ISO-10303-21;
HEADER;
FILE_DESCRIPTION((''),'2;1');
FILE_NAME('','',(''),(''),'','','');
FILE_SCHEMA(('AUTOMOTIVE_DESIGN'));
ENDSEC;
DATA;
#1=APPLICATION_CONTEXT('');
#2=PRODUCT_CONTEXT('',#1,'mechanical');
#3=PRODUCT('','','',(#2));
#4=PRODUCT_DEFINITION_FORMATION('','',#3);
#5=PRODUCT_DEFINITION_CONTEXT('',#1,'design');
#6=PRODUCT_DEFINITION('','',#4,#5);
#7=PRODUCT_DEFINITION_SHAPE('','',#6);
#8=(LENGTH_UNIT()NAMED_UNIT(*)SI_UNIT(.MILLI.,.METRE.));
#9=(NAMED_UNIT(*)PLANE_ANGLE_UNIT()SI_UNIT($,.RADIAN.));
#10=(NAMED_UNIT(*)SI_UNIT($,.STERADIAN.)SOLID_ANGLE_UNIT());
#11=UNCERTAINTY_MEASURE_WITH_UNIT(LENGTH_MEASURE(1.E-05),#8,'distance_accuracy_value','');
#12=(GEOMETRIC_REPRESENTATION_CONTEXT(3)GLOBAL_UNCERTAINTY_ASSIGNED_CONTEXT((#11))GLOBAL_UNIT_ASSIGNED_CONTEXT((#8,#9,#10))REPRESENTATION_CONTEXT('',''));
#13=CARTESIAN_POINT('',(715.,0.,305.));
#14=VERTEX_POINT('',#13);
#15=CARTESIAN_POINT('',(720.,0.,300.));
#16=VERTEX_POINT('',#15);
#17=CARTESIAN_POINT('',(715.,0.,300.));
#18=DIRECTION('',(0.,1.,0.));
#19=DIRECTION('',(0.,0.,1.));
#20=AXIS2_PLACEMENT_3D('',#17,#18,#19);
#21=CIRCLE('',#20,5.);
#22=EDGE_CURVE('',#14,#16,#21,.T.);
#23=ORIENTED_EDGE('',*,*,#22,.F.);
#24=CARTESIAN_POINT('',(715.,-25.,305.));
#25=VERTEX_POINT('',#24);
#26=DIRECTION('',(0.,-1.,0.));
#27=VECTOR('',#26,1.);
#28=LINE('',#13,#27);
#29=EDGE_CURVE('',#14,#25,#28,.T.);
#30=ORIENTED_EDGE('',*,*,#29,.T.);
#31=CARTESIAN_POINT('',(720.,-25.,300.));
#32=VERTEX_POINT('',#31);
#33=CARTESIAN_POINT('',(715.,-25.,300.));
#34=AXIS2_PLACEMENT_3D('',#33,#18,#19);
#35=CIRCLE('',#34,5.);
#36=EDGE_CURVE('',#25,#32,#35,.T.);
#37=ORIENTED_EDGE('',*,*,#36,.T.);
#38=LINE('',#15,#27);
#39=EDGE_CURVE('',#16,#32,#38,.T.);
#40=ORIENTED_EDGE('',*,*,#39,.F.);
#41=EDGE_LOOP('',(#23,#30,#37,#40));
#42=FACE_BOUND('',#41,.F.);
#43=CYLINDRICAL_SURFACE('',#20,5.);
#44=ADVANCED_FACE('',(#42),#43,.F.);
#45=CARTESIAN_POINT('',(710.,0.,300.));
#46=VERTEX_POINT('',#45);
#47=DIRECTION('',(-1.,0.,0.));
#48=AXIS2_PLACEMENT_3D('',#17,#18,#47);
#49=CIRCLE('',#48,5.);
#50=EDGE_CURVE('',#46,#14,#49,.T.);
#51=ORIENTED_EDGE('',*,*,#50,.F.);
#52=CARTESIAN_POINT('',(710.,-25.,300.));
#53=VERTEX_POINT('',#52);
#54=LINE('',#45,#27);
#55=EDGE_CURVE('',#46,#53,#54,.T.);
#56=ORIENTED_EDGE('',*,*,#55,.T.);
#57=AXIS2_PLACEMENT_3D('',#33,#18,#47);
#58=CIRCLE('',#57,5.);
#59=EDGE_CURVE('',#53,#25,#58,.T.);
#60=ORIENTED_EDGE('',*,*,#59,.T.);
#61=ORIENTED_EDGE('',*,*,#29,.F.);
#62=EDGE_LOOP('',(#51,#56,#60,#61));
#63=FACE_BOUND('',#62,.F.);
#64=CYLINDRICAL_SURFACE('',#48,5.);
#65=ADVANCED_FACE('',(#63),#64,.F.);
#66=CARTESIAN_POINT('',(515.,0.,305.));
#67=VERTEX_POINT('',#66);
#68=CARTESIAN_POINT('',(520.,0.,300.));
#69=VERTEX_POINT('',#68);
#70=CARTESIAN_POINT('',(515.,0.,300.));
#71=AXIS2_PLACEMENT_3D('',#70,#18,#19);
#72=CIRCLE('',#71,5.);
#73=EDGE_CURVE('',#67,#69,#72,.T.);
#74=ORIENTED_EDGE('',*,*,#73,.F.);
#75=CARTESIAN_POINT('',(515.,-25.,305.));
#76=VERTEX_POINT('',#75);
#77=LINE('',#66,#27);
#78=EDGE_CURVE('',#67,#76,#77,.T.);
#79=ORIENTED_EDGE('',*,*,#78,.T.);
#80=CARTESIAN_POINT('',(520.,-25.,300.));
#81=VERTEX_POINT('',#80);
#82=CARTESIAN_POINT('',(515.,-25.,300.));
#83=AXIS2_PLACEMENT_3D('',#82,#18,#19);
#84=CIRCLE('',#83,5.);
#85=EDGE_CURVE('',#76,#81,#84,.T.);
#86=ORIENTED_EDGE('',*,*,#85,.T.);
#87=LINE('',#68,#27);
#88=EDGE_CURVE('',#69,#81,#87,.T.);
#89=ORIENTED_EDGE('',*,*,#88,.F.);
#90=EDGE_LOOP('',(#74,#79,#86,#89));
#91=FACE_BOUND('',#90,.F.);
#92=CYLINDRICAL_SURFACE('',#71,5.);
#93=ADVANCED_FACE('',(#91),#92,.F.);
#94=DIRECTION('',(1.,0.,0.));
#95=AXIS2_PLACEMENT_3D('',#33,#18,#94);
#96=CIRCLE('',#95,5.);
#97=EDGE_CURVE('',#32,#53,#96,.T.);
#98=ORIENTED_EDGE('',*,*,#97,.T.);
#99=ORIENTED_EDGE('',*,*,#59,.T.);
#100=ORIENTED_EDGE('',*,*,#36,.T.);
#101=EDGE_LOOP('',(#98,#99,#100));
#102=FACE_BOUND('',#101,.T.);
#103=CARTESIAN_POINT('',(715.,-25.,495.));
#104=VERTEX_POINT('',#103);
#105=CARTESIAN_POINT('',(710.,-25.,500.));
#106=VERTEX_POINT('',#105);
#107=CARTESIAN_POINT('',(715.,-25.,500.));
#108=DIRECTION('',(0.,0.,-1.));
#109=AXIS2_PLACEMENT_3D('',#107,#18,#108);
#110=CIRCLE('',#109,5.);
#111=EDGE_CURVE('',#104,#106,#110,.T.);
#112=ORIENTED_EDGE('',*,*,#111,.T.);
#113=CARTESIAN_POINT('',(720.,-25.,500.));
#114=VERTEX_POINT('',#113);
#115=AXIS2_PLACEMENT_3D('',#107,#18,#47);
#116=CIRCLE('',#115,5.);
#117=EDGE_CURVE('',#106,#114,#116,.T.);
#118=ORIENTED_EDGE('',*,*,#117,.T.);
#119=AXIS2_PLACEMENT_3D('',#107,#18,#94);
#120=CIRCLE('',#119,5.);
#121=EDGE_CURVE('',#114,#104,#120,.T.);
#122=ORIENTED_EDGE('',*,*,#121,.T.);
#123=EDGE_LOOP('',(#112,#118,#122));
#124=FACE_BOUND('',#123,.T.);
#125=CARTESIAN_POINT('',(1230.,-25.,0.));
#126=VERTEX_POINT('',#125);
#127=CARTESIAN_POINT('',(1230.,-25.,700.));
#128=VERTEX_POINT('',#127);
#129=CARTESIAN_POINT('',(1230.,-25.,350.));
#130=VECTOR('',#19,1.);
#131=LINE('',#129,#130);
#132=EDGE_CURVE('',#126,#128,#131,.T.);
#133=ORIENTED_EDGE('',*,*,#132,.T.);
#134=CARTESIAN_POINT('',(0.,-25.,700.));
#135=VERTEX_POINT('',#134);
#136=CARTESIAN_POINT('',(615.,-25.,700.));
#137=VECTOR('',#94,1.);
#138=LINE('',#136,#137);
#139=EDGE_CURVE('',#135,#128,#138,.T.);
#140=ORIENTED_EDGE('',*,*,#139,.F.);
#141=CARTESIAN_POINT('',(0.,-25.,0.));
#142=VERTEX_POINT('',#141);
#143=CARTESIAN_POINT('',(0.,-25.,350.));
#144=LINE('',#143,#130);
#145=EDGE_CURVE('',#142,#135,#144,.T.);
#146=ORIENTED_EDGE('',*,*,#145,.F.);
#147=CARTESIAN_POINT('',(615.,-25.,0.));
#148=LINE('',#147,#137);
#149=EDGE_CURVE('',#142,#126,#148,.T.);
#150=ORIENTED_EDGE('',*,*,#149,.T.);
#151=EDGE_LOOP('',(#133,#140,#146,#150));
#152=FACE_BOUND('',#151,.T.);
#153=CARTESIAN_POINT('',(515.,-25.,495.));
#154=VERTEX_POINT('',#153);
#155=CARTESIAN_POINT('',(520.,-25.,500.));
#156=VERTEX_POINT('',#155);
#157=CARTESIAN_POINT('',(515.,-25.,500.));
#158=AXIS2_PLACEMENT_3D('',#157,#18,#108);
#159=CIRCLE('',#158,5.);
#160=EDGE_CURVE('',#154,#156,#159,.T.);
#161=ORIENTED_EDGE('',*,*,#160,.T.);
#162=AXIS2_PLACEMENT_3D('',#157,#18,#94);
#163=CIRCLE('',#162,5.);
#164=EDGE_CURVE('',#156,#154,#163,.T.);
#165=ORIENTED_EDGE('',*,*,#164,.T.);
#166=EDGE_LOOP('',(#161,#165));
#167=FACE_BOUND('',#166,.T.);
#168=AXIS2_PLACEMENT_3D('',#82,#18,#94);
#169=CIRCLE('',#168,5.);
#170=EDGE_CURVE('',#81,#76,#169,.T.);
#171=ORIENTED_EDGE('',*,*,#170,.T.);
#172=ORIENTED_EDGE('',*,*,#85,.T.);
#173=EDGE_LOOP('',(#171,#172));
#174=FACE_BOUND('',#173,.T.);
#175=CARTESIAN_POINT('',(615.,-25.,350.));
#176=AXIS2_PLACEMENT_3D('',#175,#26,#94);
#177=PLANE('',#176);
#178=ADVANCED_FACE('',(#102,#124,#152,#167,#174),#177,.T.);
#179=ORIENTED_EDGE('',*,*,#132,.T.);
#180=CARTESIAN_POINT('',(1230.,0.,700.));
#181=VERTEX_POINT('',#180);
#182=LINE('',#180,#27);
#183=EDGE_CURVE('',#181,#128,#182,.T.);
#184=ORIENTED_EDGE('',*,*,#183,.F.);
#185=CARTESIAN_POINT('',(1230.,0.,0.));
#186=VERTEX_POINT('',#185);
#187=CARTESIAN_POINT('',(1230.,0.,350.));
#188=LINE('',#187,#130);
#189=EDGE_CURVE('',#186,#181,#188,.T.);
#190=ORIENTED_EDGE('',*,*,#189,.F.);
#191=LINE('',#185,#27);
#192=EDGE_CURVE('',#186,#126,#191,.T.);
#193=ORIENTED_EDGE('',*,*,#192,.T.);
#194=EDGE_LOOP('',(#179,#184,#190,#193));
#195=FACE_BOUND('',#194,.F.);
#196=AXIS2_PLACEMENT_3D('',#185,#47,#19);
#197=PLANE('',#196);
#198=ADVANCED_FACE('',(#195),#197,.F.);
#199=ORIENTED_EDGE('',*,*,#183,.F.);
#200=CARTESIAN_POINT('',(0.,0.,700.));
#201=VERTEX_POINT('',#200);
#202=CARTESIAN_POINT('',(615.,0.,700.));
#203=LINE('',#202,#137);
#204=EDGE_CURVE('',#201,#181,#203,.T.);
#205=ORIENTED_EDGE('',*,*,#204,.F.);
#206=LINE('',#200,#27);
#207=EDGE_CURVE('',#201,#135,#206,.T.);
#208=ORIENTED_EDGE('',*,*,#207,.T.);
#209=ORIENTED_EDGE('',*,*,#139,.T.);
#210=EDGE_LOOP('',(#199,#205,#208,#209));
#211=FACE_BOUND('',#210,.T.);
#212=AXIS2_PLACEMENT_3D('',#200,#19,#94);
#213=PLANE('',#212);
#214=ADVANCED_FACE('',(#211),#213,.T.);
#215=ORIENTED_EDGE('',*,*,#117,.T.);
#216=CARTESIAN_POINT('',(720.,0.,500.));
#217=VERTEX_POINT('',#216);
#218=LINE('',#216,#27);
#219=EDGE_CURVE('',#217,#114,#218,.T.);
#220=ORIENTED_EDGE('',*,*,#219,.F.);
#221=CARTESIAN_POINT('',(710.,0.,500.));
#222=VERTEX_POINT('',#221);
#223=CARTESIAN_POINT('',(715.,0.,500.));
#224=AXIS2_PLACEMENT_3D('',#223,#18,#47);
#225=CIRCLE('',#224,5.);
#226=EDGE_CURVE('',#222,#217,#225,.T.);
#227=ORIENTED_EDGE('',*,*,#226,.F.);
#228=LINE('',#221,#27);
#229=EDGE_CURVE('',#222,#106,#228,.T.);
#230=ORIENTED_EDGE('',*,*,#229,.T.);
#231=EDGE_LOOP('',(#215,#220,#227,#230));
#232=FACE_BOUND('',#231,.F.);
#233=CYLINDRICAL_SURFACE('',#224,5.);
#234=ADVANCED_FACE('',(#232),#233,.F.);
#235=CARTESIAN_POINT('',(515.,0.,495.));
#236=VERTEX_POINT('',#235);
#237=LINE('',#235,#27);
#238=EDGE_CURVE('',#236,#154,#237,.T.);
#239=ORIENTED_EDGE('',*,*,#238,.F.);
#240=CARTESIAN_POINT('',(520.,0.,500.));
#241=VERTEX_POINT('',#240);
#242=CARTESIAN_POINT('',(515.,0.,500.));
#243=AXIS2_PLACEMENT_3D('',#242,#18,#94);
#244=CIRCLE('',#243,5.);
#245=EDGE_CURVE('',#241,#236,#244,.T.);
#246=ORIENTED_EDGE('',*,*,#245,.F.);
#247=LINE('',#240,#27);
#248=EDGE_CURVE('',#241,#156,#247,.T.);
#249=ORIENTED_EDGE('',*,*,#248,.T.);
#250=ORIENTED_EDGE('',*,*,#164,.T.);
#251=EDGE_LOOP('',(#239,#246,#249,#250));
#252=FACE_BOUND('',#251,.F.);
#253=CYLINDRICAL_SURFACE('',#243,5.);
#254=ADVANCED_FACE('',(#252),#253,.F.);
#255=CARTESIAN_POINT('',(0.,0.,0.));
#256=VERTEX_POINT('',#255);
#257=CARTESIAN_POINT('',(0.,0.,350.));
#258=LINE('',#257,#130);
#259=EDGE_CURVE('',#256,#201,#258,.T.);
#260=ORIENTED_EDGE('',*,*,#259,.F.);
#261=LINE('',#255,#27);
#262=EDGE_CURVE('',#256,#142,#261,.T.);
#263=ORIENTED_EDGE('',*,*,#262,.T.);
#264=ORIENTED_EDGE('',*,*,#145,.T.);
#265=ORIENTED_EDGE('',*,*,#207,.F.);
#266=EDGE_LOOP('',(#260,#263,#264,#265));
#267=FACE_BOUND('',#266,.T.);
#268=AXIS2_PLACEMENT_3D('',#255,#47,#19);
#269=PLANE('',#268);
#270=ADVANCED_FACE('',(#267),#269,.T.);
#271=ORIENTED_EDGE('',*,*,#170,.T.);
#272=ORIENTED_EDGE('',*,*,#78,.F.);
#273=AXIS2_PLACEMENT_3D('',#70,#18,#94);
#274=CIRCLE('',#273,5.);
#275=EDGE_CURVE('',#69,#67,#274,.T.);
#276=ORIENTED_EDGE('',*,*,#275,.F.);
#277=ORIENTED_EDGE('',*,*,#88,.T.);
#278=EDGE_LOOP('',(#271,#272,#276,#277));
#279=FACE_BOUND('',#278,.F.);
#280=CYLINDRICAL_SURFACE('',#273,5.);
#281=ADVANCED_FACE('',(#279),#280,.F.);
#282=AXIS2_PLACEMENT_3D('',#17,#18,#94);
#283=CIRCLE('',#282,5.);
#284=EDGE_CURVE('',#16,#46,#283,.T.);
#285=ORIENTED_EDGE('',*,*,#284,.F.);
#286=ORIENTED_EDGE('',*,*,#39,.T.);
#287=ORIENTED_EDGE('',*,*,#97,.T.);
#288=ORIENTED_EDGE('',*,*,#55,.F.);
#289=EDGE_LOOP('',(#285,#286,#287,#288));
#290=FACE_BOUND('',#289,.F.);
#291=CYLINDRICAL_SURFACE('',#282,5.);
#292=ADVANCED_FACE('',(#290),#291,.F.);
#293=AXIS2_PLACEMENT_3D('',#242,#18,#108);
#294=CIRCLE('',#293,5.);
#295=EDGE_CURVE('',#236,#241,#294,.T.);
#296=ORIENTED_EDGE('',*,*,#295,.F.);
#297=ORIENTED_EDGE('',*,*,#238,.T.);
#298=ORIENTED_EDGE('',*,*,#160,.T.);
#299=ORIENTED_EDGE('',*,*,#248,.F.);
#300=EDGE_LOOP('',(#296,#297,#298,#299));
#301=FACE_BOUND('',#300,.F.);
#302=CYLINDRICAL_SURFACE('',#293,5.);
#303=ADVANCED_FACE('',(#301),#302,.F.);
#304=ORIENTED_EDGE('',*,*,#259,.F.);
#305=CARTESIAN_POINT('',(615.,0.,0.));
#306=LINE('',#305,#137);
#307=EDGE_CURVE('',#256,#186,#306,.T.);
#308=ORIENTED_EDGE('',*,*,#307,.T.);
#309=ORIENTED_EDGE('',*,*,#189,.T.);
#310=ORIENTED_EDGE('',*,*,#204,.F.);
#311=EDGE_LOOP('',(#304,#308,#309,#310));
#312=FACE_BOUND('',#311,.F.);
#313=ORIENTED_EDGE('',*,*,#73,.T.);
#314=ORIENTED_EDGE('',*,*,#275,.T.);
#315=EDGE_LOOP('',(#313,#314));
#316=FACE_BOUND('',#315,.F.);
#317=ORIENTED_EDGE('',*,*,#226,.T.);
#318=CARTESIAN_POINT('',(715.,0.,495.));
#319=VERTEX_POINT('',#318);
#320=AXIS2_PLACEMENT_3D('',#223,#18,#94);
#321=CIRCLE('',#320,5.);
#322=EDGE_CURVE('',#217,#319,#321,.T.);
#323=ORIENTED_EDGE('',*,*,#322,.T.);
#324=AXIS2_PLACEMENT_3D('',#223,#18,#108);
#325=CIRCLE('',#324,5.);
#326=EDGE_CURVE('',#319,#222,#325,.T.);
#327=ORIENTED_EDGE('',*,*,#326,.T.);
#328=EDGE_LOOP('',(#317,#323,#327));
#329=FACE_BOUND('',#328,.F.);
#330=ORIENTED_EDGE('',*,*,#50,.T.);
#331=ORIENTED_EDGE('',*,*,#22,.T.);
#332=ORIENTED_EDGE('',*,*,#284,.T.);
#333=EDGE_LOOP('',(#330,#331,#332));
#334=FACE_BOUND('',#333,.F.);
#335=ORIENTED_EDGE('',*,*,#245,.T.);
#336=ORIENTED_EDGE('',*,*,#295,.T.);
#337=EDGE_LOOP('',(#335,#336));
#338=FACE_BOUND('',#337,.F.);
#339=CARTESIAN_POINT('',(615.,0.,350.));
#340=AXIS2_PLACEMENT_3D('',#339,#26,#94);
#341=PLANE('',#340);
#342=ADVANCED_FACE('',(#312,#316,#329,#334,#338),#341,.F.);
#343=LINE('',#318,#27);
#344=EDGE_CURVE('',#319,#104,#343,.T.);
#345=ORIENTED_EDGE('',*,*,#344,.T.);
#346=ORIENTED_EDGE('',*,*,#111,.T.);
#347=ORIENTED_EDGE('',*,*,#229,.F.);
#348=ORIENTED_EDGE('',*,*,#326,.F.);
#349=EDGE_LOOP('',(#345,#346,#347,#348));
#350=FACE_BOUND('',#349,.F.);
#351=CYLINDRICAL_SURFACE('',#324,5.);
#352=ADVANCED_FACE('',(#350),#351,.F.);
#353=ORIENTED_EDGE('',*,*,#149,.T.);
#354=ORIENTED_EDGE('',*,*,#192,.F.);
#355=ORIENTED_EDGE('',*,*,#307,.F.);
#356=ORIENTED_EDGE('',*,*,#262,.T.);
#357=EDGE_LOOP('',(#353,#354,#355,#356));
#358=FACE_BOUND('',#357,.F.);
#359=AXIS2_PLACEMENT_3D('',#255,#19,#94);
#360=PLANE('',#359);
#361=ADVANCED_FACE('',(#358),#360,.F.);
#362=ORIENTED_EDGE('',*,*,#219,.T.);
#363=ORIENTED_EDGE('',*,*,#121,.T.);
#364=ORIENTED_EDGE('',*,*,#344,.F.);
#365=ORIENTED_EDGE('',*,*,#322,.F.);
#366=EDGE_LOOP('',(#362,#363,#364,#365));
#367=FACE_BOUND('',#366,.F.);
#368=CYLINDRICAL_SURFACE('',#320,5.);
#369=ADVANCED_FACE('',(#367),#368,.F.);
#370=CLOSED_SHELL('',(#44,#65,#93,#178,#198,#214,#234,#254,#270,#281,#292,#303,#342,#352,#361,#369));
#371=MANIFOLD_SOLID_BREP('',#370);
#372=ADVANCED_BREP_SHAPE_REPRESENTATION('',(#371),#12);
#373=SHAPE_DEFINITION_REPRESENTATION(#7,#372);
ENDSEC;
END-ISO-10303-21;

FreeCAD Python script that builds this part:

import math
import FreeCAD as App
import Part
import Sketcher
Q = App.Units.Quantity

doc = App.newDocument("Part")
params = doc.addObject("Spreadsheet::Sheet", "Params")
for row, (alias, value) in enumerate([
    ("sketch1_radius", "5 mm"),
    ("sketch1_width", "1230 mm"),
    ("sketch1_height", "700 mm"),
    ("pad1_length", "25 mm"),
], start=1):
    params.set(f"A{row}", alias)
    params.set(f"B{row}", "=" + value)
    params.setAlias(f"B{row}", alias)

body = doc.addObject("PartDesign::Body", "Body")

# Sketch on XZ plane
sketch1 = doc.addObject("Sketcher::SketchObject", "Sketch")
body.addObject(sketch1)
sketch1.AttachmentSupport = (doc.XZ_Plane, [""])
sketch1.MapMode = "FlatFace"
sketch1.addGeometry(Part.LineSegment(App.Vector(0, 700, 0), App.Vector(0, 0, 0)), False)
sketch1.addGeometry(Part.LineSegment(App.Vector(0, 0, 0), App.Vector(1230, 0, 0)), False)
sketch1.addGeometry(Part.LineSegment(App.Vector(1230, 0, 0), App.Vector(1230, 700, 0)), False)
sketch1.addGeometry(Part.LineSegment(App.Vector(1230, 700, 0), App.Vector(0, 700, 0)), False)
sketch1.addGeometry(Part.ArcOfCircle(Part.Circle(App.Vector(515, 300, 0), App.Vector(0, 0, 1), 5), math.radians(90), math.radians(360)), False)
sketch1.addGeometry(Part.ArcOfCircle(Part.Circle(App.Vector(515, 300, 0), App.Vector(0, 0, 1), 5), math.radians(0), math.radians(90)), False)
sketch1.addGeometry(Part.ArcOfCircle(Part.Circle(App.Vector(715, 300, 0), App.Vector(0, 0, 1), 5), math.radians(180), math.radians(360)), False)
sketch1.addGeometry(Part.ArcOfCircle(Part.Circle(App.Vector(715, 300, 0), App.Vector(0, 0, 1), 5), math.radians(90), math.radians(180)), False)
sketch1.addGeometry(Part.ArcOfCircle(Part.Circle(App.Vector(715, 300, 0), App.Vector(0, 0, 1), 5), math.radians(0), math.radians(90)), False)
sketch1.addGeometry(Part.ArcOfCircle(Part.Circle(App.Vector(715, 500, 0), App.Vector(0, 0, 1), 5), math.radians(-90), math.radians(0)), False)
sketch1.addGeometry(Part.ArcOfCircle(Part.Circle(App.Vector(715, 500, 0), App.Vector(0, 0, 1), 5), math.radians(180), math.radians(270)), False)
sketch1.addGeometry(Part.ArcOfCircle(Part.Circle(App.Vector(715, 500, 0), App.Vector(0, 0, 1), 5), math.radians(0), math.radians(180)), False)
sketch1.addGeometry(Part.ArcOfCircle(Part.Circle(App.Vector(515, 500, 0), App.Vector(0, 0, 1), 5), math.radians(0), math.radians(270)), False)
sketch1.addGeometry(Part.ArcOfCircle(Part.Circle(App.Vector(515, 500, 0), App.Vector(0, 0, 1), 5), math.radians(-90), math.radians(0)), False)
sketch1.addConstraint(Sketcher.Constraint("Coincident", 0, 2, 1, 1))
sketch1.addConstraint(Sketcher.Constraint("Coincident", 1, 2, 2, 1))
sketch1.addConstraint(Sketcher.Constraint("Coincident", 2, 2, 3, 1))
sketch1.addConstraint(Sketcher.Constraint("Coincident", 3, 2, 0, 1))
sketch1.addConstraint(Sketcher.Constraint("Tangent", 4, 1, 5, 2))
sketch1.addConstraint(Sketcher.Constraint("Coincident", 5, 1, 4, 2))
sketch1.addConstraint(Sketcher.Constraint("Tangent", 6, 1, 7, 2))
sketch1.addConstraint(Sketcher.Constraint("Tangent", 7, 1, 8, 2))
sketch1.addConstraint(Sketcher.Constraint("Tangent", 8, 1, 6, 2))
sketch1.addConstraint(Sketcher.Constraint("Tangent", 9, 1, 10, 2))
sketch1.addConstraint(Sketcher.Constraint("Tangent", 10, 1, 11, 2))
sketch1.addConstraint(Sketcher.Constraint("Tangent", 11, 1, 9, 2))
sketch1.addConstraint(Sketcher.Constraint("Tangent", 12, 1, 13, 2))
sketch1.addConstraint(Sketcher.Constraint("Coincident", 13, 1, 12, 2))
sketch1.addConstraint(Sketcher.Constraint("Vertical", 0))
sketch1.addConstraint(Sketcher.Constraint("Horizontal", 1))
sketch1.addConstraint(Sketcher.Constraint("Vertical", 2))
sketch1.addConstraint(Sketcher.Constraint("Horizontal", 3))
sketch1.addConstraint(Sketcher.Constraint("Coincident", 0, 2, -1, 1))
sketch1.addConstraint(Sketcher.Constraint("Equal", 5, 6))
sketch1.addConstraint(Sketcher.Constraint("Equal", 8, 9))
sketch1.addConstraint(Sketcher.Constraint("Equal", 11, 12))
sketch1.addConstraint(Sketcher.Constraint("Horizontal", 5, 3, 6, 3))
sketch1.addConstraint(Sketcher.Constraint("Horizontal", 11, 3, 12, 3))
sketch1.addConstraint(Sketcher.Constraint("Horizontal", 8, 3, 5, 1))
sketch1.addConstraint(Sketcher.Constraint("Horizontal", 5, 1, 6, 1))
sketch1.addConstraint(Sketcher.Constraint("Horizontal", 6, 1, 8, 1))
sketch1.addConstraint(Sketcher.Constraint("Horizontal", 13, 3, 10, 1))
sketch1.addConstraint(Sketcher.Constraint("Horizontal", 10, 1, 11, 1))
sketch1.addConstraint(Sketcher.Constraint("Horizontal", 11, 1, 12, 1))
sketch1.addConstraint(Sketcher.Constraint("Vertical", 8, 3, 9, 3))
sketch1.addConstraint(Sketcher.Constraint("Vertical", 5, 3, 12, 3))
sketch1.addConstraint(Sketcher.Constraint("Vertical", 13, 3, 4, 1))
sketch1.addConstraint(Sketcher.Constraint("Vertical", 11, 3, 7, 1))
sketch1.addConstraint(Sketcher.Constraint("Vertical", 7, 1, 9, 1))
sketch1.addConstraint(Sketcher.Constraint("Vertical", 4, 1, 13, 1))
sketch1.addConstraint(Sketcher.Constraint("Radius", 4, Q("5 mm")))
sketch1.addConstraint(Sketcher.Constraint("DistanceX", 1, 1, 1, 2, Q("1230 mm")))
sketch1.addConstraint(Sketcher.Constraint("DistanceY", 0, 2, 0, 1, Q("700 mm")))
sketch1.addConstraint(Sketcher.Constraint("DistanceX", -1, 1, 4, 3, Q("515 mm")))
sketch1.addConstraint(Sketcher.Constraint("DistanceY", -1, 1, 4, 3, Q("300 mm")))
sketch1.addConstraint(Sketcher.Constraint("DistanceX", -1, 1, 6, 3, Q("715 mm")))
sketch1.addConstraint(Sketcher.Constraint("DistanceY", -1, 1, 9, 3, Q("500 mm")))
sketch1.setExpression("Constraints[36]", "Params.sketch1_radius")
sketch1.setExpression("Constraints[37]", "Params.sketch1_width")
sketch1.setExpression("Constraints[38]", "Params.sketch1_height")
pad1 = doc.addObject("PartDesign::Pad", "Pad")
body.addObject(pad1)
pad1.Profile = sketch1
pad1.setExpression("Length", "Params.pad1_length")

doc.recompute()
